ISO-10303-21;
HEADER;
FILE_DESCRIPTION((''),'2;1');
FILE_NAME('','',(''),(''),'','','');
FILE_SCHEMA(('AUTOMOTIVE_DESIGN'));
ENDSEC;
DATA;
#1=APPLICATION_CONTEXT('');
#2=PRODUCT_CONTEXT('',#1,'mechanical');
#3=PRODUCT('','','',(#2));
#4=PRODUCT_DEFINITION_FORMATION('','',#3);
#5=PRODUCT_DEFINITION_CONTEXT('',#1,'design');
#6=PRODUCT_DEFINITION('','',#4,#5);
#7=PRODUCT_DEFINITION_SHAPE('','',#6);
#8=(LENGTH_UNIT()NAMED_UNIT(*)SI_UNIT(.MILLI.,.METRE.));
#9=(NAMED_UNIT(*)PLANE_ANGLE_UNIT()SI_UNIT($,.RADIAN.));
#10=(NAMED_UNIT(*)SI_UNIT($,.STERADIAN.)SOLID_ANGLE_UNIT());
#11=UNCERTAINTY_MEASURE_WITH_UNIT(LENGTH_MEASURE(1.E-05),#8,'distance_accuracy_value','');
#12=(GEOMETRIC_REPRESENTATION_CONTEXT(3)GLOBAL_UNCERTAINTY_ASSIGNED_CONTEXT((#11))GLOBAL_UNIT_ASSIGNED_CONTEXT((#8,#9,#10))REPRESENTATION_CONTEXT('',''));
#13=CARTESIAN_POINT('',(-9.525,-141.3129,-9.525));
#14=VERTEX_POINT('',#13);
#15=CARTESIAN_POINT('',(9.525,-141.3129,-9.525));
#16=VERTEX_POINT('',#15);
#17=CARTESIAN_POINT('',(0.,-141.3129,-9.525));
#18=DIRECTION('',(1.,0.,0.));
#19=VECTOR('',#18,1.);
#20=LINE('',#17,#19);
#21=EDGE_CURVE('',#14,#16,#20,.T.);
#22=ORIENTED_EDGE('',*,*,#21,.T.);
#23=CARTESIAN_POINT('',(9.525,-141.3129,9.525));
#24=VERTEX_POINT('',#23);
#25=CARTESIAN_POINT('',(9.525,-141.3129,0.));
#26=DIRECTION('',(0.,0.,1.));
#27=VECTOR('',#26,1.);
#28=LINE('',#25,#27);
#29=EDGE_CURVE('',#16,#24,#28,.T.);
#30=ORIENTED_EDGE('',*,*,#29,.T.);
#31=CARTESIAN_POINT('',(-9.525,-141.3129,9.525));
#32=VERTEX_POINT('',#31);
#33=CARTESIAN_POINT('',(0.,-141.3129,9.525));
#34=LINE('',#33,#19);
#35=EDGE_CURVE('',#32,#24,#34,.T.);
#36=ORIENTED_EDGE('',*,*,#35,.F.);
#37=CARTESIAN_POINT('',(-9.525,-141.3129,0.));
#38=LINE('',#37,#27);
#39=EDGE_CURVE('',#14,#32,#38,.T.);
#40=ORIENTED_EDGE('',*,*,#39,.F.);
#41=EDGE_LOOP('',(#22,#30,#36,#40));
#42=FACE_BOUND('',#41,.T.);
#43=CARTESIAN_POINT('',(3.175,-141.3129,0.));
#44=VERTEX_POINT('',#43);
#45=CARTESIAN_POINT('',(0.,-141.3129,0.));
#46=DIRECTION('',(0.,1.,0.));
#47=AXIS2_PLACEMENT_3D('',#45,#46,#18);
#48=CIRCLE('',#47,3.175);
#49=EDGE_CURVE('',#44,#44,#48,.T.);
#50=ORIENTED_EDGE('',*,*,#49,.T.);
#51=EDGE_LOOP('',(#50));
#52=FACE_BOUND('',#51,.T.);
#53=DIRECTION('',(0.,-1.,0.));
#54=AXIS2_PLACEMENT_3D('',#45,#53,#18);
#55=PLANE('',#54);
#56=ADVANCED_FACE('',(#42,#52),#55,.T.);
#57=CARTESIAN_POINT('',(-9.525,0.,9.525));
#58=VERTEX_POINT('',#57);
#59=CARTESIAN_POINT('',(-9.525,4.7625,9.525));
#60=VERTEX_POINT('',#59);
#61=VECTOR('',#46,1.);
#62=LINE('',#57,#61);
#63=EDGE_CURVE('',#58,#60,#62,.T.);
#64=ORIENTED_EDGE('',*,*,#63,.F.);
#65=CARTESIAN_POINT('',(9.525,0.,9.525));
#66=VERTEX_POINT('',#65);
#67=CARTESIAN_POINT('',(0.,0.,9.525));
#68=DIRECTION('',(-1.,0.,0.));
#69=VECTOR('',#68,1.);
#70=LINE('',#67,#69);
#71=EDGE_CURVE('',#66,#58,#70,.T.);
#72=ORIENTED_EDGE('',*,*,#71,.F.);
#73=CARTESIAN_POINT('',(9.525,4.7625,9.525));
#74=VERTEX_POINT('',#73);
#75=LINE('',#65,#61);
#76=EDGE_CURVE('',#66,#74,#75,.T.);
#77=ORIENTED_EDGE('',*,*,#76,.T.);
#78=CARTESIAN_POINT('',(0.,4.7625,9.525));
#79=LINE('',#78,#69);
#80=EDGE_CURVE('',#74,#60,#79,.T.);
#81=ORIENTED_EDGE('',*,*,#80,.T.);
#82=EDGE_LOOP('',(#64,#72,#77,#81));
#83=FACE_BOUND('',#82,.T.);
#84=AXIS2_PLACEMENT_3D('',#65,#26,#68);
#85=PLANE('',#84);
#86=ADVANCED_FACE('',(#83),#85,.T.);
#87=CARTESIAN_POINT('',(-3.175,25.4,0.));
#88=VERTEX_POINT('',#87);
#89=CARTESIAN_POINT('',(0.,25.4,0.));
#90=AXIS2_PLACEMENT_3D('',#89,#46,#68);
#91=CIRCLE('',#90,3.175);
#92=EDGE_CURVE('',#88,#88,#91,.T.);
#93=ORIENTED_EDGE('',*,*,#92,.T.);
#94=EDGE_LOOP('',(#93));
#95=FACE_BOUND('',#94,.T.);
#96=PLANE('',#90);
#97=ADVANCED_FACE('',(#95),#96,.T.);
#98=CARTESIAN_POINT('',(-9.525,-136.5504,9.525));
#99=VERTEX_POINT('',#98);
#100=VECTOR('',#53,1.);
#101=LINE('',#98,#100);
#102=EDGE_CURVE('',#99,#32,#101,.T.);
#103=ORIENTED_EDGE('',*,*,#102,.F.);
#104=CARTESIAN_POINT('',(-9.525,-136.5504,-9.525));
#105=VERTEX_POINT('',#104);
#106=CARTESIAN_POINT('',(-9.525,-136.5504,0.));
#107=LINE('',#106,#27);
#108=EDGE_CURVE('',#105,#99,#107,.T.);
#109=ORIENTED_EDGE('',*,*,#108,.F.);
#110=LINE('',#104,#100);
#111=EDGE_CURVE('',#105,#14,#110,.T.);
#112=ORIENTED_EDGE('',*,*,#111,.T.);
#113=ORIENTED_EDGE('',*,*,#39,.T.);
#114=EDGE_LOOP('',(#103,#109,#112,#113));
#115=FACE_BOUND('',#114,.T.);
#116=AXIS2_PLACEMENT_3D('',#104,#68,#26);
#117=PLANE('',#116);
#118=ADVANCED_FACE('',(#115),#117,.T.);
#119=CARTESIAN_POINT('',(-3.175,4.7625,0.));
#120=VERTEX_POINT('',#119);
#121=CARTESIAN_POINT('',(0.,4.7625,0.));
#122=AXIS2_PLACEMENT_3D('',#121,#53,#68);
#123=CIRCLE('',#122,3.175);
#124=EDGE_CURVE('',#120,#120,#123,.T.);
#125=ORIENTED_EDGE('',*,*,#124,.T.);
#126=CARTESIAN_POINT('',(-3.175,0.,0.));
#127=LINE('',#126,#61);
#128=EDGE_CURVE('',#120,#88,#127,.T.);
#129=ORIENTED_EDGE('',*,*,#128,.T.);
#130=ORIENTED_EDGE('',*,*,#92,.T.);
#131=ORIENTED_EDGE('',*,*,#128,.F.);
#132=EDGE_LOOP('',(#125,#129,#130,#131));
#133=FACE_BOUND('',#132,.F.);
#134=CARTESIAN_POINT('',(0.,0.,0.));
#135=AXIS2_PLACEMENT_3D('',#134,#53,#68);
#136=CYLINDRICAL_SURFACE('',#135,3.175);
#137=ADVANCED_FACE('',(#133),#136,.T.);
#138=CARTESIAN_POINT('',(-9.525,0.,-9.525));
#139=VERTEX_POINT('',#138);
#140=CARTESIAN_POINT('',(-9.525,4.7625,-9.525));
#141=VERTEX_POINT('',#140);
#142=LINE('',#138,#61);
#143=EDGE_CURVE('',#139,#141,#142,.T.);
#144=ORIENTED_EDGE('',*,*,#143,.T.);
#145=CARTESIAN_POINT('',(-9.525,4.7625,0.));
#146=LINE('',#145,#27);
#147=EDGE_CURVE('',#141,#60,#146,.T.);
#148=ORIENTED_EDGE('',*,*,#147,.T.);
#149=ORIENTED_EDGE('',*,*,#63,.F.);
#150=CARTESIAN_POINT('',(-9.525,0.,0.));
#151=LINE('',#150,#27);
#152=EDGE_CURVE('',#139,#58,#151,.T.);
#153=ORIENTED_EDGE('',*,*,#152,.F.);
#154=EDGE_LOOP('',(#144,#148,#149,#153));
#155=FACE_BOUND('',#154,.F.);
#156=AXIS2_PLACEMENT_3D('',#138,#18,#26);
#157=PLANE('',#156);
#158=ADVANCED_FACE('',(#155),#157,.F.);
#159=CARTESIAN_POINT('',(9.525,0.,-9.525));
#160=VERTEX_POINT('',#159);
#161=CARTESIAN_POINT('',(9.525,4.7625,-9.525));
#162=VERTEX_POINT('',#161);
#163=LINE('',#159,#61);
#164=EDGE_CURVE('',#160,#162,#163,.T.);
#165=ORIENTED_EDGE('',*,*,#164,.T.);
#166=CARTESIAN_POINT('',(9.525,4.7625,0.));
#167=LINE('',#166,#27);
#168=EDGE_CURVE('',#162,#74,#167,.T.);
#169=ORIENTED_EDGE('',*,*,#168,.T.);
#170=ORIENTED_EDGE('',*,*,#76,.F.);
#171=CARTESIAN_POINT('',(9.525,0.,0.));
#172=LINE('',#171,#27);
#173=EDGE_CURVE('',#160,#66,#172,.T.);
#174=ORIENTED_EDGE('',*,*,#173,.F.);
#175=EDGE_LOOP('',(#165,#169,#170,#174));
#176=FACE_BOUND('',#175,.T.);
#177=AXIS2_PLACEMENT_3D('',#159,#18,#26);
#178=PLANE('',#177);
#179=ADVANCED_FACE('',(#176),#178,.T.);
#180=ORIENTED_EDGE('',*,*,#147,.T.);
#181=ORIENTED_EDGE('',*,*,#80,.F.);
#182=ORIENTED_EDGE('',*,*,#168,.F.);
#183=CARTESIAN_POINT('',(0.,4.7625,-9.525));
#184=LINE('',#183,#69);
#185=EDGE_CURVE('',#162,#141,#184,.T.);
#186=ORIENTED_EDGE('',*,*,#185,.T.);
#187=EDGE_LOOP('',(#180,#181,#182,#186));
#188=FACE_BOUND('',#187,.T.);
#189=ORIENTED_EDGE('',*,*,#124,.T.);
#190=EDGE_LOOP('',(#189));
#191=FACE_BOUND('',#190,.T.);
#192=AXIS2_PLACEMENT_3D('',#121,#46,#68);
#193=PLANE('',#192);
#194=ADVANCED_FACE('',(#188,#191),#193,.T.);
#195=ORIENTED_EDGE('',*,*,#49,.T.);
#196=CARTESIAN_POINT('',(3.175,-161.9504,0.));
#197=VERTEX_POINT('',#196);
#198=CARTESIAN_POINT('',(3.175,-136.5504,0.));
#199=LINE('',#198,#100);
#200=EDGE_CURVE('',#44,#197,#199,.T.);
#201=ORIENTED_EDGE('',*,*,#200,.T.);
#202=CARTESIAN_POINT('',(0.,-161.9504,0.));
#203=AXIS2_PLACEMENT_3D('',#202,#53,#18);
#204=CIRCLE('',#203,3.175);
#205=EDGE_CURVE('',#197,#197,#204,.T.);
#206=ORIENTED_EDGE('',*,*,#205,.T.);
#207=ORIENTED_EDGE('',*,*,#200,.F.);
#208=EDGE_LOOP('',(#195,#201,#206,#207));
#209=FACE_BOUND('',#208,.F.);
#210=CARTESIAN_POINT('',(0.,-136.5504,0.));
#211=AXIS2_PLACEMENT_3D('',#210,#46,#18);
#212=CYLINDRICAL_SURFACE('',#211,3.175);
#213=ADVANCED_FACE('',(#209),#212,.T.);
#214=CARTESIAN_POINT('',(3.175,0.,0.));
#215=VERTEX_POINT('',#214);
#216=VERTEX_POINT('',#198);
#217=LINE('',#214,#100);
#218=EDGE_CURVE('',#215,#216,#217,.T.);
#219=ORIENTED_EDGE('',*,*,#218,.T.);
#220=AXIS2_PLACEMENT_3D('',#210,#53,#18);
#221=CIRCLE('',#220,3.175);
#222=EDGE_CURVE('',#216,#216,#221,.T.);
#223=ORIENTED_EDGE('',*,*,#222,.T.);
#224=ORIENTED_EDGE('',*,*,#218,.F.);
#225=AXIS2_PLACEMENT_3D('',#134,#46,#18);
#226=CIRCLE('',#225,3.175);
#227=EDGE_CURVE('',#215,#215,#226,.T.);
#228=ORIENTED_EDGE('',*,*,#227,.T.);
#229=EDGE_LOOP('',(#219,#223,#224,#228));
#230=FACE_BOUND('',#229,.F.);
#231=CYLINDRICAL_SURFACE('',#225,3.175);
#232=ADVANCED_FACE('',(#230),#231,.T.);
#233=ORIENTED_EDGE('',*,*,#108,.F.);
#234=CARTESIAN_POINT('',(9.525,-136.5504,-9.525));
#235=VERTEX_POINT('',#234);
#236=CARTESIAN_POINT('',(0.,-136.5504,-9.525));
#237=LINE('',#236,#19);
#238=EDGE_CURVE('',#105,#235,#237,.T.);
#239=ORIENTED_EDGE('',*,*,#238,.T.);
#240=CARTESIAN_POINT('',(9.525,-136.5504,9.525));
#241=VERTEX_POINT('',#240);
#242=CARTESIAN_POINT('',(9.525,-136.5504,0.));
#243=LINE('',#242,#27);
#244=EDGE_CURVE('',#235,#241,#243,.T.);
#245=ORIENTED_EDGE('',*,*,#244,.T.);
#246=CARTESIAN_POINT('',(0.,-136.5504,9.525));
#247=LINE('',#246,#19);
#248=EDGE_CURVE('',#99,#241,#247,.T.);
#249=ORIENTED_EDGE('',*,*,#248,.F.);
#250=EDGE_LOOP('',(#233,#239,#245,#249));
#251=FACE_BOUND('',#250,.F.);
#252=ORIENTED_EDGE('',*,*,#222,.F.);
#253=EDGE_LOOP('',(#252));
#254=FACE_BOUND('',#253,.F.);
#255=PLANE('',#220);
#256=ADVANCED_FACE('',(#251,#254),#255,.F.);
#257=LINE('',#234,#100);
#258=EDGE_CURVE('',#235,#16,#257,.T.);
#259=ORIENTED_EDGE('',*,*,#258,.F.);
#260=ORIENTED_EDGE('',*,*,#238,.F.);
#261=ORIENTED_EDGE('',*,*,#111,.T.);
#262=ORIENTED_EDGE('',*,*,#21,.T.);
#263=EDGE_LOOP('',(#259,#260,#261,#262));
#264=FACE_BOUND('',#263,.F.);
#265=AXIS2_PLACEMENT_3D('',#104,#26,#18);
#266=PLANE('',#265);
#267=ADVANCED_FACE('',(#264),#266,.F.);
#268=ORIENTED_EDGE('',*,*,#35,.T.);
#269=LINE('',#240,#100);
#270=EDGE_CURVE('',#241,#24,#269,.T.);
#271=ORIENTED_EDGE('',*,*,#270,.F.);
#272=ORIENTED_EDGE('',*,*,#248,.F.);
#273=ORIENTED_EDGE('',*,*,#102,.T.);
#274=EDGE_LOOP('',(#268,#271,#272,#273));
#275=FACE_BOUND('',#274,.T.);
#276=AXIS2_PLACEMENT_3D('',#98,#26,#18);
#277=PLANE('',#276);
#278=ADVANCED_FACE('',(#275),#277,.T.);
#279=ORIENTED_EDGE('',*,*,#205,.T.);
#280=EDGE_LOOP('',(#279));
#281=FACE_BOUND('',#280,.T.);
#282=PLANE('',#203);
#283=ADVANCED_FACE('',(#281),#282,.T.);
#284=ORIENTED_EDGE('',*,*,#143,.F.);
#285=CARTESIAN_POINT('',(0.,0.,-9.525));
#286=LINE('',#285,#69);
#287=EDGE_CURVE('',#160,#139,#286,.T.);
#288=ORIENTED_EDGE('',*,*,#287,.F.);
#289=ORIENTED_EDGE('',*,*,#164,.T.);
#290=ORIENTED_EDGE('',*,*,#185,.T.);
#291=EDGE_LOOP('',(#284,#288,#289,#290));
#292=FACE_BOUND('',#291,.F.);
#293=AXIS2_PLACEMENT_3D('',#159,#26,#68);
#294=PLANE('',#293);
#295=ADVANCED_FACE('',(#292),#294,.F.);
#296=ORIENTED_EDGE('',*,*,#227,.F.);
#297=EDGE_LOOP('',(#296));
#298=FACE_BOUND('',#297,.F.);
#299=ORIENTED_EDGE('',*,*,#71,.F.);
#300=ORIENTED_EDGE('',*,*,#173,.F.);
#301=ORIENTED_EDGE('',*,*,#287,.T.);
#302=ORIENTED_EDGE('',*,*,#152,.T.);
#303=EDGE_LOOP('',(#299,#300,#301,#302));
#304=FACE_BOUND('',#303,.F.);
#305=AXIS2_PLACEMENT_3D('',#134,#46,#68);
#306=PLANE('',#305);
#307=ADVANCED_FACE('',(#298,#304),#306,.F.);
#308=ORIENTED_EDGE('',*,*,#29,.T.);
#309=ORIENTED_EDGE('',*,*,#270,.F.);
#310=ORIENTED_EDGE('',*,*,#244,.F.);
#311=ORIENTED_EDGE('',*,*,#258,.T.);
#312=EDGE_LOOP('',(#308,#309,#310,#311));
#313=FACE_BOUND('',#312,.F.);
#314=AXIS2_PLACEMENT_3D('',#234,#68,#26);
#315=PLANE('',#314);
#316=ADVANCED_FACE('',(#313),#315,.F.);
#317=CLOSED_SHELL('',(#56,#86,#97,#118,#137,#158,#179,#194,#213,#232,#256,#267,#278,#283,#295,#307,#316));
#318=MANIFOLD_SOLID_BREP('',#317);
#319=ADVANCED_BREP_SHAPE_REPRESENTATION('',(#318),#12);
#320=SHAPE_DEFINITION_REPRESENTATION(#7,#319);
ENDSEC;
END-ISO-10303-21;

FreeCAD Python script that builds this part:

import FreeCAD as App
import Part
import Sketcher

V = App.Vector
Q = App.Units.Quantity

doc = App.newDocument("Part")
body = doc.addObject("PartDesign::Body", "Body")

# Sketch on XZ plane
sketch1 = body.newObject("Sketcher::SketchObject", "Sketch")
sketch1.AttachmentSupport = (doc.getObject("XZ_Plane"), [""])
sketch1.MapMode = "FlatFace"
sketch1.addGeometry(Part.Circle(V(0, 0, 0), V(0, 0, 1), 3.175), False)
sketch1.addConstraint(Sketcher.Constraint("Coincident", 0, 3, -1, 1))
sketch1.addConstraint(Sketcher.Constraint("Diameter", 0, Q("0.25 in")))
pad1 = body.newObject("PartDesign::Pad", "Pad")
pad1.Profile = sketch1
pad1.Length = Q("5.376 in")

# Sketch on XZ plane
sketch2 = body.newObject("Sketcher::SketchObject", "Sketch001")
sketch2.AttachmentSupport = (doc.getObject("XZ_Plane"), [""])
sketch2.MapMode = "FlatFace"
sketch2.AttachmentOffset = App.Placement(V(0, 0, 5.376 * 25.4), App.Rotation())
sketch2.addGeometry(Part.LineSegment(V(-9.525, 9.525, 0), V(-9.525, -9.525, 0)), False)
sketch2.addGeometry(Part.LineSegment(V(-9.525, -9.525, 0), V(9.525, -9.525, 0)), False)
sketch2.addGeometry(Part.LineSegment(V(9.525, -9.525, 0), V(9.525, 9.525, 0)), False)
sketch2.addGeometry(Part.LineSegment(V(9.525, 9.525, 0), V(-9.525, 9.525, 0)), False)
sketch2.addConstraint(Sketcher.Constraint("Coincident", 0, 2, 1, 1))
sketch2.addConstraint(Sketcher.Constraint("Coincident", 1, 2, 2, 1))
sketch2.addConstraint(Sketcher.Constraint("Coincident", 2, 2, 3, 1))
sketch2.addConstraint(Sketcher.Constraint("Coincident", 3, 2, 0, 1))
sketch2.addConstraint(Sketcher.Constraint("Vertical", 0))
sketch2.addConstraint(Sketcher.Constraint("Horizontal", 1))
sketch2.addConstraint(Sketcher.Constraint("Vertical", 2))
sketch2.addConstraint(Sketcher.Constraint("Horizontal", 3))
sketch2.addConstraint(Sketcher.Constraint("Symmetric", 0, 2, 2, 2, -1, 1))
sketch2.addConstraint(Sketcher.Constraint("Equal", 3, 0))
sketch2.addConstraint(Sketcher.Constraint("DistanceX", 1, 1, 1, 2, Q("0.75 in")))
pad2 = body.newObject("PartDesign::Pad", "Pad001")
pad2.Profile = sketch2
pad2.Length = Q("0.1875 in")

# Sketch on XZ plane
sketch3 = body.newObject("Sketcher::SketchObject", "Sketch002")
sketch3.AttachmentSupport = (doc.getObject("XZ_Plane"), [""])
sketch3.MapMode = "FlatFace"
sketch3.addGeometry(Part.LineSegment(V(9.525, 9.525, 0), V(9.525, -9.525, 0)), False)
sketch3.addGeometry(Part.LineSegment(V(9.525, -9.525, 0), V(-9.525, -9.525, 0)), False)
sketch3.addGeometry(Part.LineSegment(V(-9.525, -9.525, 0), V(-9.525, 9.525, 0)), False)
sketch3.addGeometry(Part.LineSegment(V(-9.525, 9.525, 0), V(9.525, 9.525, 0)), False)
sketch3.addConstraint(Sketcher.Constraint("Coincident", 0, 2, 1, 1))
sketch3.addConstraint(Sketcher.Constraint("Coincident", 1, 2, 2, 1))
sketch3.addConstraint(Sketcher.Constraint("Coincident", 2, 2, 3, 1))
sketch3.addConstraint(Sketcher.Constraint("Coincident", 3, 2, 0, 1))
sketch3.addConstraint(Sketcher.Constraint("Vertical", 0))
sketch3.addConstraint(Sketcher.Constraint("Horizontal", 1))
sketch3.addConstraint(Sketcher.Constraint("Vertical", 2))
sketch3.addConstraint(Sketcher.Constraint("Horizontal", 3))
sketch3.addConstraint(Sketcher.Constraint("Symmetric", 0, 2, 2, 2, -1, 1))
sketch3.addConstraint(Sketcher.Constraint("Equal", 3, 0))
sketch3.addConstraint(Sketcher.Constraint("DistanceX", 1, 2, 1, 1, Q("0.75 in")))
pad3 = body.newObject("PartDesign::Pad", "Pad002")
pad3.Profile = sketch3
pad3.Length = Q("0.1875 in")
pad3.Reversed = True

# Sketch on XZ plane
sketch4 = body.newObject("Sketcher::SketchObject", "Sketch003")
sketch4.AttachmentSupport = (doc.getObject("XZ_Plane"), [""])
sketch4.MapMode = "FlatFace"
sketch4.AttachmentOffset = App.Placement(V(0, 0, 5.376 * 25.4), App.Rotation())
sketch4.addGeometry(Part.Circle(V(0, 0, 0), V(0, 0, 1), 3.175), False)
sketch4.addConstraint(Sketcher.Constraint("Coincident", 0, 3, -1, 1))
sketch4.addConstraint(Sketcher.Constraint("Diameter", 0, Q("0.25 in")))
pad4 = body.newObject("PartDesign::Pad", "Pad003")
pad4.Profile = sketch4
pad4.Length = Q("1 in")

# Sketch on XZ plane
sketch5 = body.newObject("Sketcher::SketchObject", "Sketch004")
sketch5.AttachmentSupport = (doc.getObject("XZ_Plane"), [""])
sketch5.MapMode = "FlatFace"
sketch5.addGeometry(Part.Circle(V(0, 0, 0), V(0, 0, 1), 3.175), False)
sketch5.addConstraint(Sketcher.Constraint("Coincident", 0, 3, -1, 1))
sketch5.addConstraint(Sketcher.Constraint("Diameter", 0, Q("0.25 in")))
pad5 = body.newObject("PartDesign::Pad", "Pad004")
pad5.Profile = sketch5
pad5.Length = Q("1 in")
pad5.Reversed = True

doc.recompute()
